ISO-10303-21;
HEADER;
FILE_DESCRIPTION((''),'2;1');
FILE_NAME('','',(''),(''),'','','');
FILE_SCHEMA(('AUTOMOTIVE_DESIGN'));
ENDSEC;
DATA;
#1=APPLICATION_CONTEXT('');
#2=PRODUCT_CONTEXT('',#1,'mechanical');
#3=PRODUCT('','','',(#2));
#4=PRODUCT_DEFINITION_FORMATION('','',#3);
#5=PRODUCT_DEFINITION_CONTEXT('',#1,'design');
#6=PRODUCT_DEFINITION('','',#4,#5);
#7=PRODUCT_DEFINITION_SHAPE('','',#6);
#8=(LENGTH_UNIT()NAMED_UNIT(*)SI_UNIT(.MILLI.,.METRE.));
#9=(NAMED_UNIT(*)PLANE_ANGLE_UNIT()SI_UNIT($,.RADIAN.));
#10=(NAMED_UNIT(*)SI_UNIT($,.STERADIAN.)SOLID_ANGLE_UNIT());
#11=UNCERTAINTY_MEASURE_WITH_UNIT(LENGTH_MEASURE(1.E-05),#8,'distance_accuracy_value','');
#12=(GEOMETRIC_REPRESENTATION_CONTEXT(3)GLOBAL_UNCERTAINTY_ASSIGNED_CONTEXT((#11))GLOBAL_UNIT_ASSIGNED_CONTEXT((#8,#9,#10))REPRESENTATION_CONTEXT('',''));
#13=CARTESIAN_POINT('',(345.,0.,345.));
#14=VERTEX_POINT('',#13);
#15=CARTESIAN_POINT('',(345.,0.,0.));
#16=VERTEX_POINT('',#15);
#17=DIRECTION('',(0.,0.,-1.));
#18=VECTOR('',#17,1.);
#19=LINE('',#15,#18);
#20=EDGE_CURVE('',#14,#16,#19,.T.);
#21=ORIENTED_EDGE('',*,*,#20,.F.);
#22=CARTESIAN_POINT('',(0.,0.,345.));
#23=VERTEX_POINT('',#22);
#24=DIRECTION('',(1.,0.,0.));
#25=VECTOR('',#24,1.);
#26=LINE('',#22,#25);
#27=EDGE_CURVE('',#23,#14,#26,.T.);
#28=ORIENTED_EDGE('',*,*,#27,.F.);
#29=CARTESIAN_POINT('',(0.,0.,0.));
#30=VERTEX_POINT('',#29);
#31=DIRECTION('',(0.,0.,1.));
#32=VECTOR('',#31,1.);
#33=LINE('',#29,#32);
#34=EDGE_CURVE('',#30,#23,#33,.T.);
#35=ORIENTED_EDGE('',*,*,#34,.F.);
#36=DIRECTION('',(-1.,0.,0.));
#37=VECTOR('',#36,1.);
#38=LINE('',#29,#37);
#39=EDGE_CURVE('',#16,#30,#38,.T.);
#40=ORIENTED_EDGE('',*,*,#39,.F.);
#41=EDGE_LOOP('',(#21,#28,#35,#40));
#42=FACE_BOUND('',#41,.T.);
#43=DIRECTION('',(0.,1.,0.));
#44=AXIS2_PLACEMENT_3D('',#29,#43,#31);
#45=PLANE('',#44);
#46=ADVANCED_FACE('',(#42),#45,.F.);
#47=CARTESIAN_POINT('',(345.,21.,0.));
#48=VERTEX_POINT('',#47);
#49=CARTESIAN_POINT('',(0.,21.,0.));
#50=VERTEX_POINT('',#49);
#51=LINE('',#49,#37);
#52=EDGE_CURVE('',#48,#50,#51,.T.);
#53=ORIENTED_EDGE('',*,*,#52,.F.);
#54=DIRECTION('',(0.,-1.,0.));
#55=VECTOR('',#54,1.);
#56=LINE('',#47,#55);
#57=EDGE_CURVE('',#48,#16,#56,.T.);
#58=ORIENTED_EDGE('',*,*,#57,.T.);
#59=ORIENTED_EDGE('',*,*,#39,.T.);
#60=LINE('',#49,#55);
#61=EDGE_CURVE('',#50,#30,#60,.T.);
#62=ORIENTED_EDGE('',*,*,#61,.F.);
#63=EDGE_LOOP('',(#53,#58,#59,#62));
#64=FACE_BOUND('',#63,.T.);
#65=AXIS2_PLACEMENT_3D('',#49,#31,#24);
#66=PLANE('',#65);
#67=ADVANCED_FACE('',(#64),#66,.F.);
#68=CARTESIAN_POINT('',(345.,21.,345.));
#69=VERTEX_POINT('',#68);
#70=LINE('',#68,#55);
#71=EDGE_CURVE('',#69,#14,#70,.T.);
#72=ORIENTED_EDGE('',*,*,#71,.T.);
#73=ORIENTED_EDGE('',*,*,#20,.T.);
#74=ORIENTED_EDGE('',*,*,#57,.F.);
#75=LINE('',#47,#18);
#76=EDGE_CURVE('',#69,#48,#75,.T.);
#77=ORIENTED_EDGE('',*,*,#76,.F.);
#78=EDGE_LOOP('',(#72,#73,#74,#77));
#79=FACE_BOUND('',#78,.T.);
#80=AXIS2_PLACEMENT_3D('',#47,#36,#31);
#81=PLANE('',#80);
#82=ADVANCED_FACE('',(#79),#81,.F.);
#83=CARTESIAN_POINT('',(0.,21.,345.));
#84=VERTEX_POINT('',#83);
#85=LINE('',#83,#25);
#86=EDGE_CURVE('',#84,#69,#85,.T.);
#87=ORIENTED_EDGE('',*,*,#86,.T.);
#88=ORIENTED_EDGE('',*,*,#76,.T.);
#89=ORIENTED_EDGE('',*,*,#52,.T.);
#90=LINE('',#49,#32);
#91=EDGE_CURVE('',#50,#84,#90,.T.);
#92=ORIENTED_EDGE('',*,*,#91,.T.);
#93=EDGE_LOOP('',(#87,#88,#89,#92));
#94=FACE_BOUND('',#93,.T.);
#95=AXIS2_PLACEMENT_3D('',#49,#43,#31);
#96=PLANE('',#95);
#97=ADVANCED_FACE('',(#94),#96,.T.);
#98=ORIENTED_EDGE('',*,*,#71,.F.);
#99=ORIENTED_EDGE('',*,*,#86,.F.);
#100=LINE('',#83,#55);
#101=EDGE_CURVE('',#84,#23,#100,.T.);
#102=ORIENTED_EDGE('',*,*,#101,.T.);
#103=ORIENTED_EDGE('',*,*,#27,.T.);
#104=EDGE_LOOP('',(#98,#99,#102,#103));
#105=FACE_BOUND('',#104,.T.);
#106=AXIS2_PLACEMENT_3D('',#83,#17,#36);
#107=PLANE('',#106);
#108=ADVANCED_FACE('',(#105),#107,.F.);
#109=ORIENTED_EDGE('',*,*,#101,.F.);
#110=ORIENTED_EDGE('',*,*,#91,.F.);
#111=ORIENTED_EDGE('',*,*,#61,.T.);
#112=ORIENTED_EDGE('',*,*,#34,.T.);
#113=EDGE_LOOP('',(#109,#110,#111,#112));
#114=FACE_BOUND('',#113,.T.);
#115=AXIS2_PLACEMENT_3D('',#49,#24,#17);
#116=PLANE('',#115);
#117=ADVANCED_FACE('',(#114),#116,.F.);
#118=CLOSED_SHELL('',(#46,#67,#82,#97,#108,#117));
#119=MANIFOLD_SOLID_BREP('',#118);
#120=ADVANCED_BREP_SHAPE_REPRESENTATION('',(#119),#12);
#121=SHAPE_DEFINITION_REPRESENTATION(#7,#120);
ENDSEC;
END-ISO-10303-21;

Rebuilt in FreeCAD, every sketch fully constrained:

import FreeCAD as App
import Part
import Sketcher

V = App.Vector
Q = App.Units.Quantity


def add_polygon(sketch, points):
    """Adds a closed chain of lines whose ends are joined by coincident constraints."""
    first, n = sketch.GeometryCount, len(points)
    for a, b in zip(points, points[1:] + points[:1]):
        sketch.addGeometry(Part.LineSegment(App.Vector(*a, 0), App.Vector(*b, 0)), False)
    for i in range(n):
        sketch.addConstraint(Sketcher.Constraint("Coincident", first + i, 2, first + (i + 1) % n, 1))

doc = App.newDocument("Part")
params = doc.addObject("Spreadsheet::Sheet", "Params")
for row, (alias, value) in enumerate([
    ("sketch1_width", "345 mm"),
    ("pad1_length", "21 mm"),
], start=1):
    params.set(f"A{row}", alias)
    params.set(f"B{row}", "=" + value)
    params.setAlias(f"B{row}", alias)

body = doc.addObject("PartDesign::Body", "Body")

# Sketch on XZ plane
sketch1 = body.newObject("Sketcher::SketchObject", "Sketch")
sketch1.AttachmentSupport = (doc.getObject("XZ_Plane"), [""])
sketch1.MapMode = "FlatFace"
add_polygon(sketch1, [(0, 0), (0, 345), (345, 345), (345, 0)])  # lines 0-3
sketch1.addConstraint([
    Sketcher.Constraint("Vertical", 0),
    Sketcher.Constraint("Horizontal", 1),
    Sketcher.Constraint("Vertical", 2),
    Sketcher.Constraint("Horizontal", 3),
    Sketcher.Constraint("Coincident", 3, 2, -1, 1),
    Sketcher.Constraint("Equal", 3, 0),
    Sketcher.Constraint("DistanceX", 1, 1, 1, 2, Q("345 mm")),
])
sketch1.setExpression("Constraints[10]", "Params.sketch1_width")
pad1 = body.newObject("PartDesign::Pad", "Pad")
pad1.Profile = sketch1
pad1.setExpression("Length", "Params.pad1_length")
pad1.Reversed = True

doc.recompute()
